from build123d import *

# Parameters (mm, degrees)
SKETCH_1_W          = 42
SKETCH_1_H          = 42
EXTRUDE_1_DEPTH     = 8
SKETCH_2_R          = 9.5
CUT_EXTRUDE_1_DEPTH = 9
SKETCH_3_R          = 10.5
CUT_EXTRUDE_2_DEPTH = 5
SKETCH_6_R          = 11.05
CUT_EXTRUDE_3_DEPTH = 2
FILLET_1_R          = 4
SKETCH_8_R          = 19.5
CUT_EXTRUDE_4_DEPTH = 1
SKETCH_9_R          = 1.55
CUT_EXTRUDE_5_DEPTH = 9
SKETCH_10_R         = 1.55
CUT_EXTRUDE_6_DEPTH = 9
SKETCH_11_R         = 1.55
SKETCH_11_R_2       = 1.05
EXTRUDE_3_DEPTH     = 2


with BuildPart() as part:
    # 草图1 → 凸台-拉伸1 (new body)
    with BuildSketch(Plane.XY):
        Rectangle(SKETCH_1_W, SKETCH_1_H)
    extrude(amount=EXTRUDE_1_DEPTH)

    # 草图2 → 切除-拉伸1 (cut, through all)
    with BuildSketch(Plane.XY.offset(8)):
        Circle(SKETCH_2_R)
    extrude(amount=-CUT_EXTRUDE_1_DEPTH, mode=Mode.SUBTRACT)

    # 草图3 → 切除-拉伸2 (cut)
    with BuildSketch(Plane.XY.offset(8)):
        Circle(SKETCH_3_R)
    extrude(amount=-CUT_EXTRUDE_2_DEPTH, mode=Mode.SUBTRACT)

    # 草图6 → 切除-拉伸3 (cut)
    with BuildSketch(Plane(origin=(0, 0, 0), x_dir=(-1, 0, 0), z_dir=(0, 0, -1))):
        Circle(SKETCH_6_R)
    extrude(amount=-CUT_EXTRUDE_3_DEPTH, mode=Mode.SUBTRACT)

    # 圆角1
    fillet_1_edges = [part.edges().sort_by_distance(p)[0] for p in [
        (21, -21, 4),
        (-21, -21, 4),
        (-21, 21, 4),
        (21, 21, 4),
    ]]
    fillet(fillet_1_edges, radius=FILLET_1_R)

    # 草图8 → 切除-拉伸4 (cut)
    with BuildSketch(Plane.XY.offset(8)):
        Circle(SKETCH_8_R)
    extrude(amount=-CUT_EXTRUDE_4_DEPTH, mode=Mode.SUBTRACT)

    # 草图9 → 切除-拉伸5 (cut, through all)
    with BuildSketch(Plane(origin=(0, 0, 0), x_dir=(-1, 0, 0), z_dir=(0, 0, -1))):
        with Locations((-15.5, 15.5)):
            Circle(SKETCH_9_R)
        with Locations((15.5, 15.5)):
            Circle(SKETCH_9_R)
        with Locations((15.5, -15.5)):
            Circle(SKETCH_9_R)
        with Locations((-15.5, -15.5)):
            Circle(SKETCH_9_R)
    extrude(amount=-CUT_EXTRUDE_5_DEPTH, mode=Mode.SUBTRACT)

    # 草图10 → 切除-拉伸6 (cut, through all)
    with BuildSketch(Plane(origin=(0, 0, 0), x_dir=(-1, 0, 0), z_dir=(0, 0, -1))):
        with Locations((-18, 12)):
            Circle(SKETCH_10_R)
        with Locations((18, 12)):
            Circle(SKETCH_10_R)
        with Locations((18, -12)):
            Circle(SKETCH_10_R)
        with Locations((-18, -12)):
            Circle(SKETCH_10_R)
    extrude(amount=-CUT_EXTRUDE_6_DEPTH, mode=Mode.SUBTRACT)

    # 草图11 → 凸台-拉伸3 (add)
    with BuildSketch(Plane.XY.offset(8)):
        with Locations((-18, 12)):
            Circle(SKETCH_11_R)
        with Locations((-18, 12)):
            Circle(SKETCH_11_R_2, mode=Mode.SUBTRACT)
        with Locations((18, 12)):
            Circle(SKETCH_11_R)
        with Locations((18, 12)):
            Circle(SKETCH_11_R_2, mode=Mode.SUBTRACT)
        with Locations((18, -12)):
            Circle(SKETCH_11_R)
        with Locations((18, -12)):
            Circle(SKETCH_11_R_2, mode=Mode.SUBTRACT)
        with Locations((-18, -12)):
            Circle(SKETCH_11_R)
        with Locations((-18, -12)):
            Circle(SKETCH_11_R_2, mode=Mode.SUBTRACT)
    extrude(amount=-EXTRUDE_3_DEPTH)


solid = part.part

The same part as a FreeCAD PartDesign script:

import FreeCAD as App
import Part
import Sketcher

V = App.Vector


def edges_at(feature, points):
    """Names of the edges that pass closest to the given points."""
    edges = feature.Shape.Edges
    near = lambda p: min(range(len(edges)), key=lambda i: edges[i].distToShape(Part.Vertex(*p))[0])
    return sorted({f"Edge{near(p) + 1}" for p in points})

doc = App.newDocument("Part")
body = doc.addObject("PartDesign::Body", "Body")

# Sketch on XY plane
sketch1 = doc.addObject("Sketcher::SketchObject", "Sketch")
body.addObject(sketch1)
sketch1.AttachmentSupport = (doc.XY_Plane, [""])
sketch1.MapMode = "FlatFace"
sketch1.addGeometry(Part.LineSegment(V(-21, 21, 0), V(-21, -21, 0)), False)
sketch1.addGeometry(Part.LineSegment(V(-21, -21, 0), V(21, -21, 0)), False)
sketch1.addGeometry(Part.LineSegment(V(21, -21, 0), V(21, 21, 0)), False)
sketch1.addGeometry(Part.LineSegment(V(21, 21, 0), V(-21, 21, 0)), False)
sketch1.addConstraint(Sketcher.Constraint("Coincident", 0, 2, 1, 1))
sketch1.addConstraint(Sketcher.Constraint("Coincident", 1, 2, 2, 1))
sketch1.addConstraint(Sketcher.Constraint("Coincident", 2, 2, 3, 1))
sketch1.addConstraint(Sketcher.Constraint("Coincident", 3, 2, 0, 1))
sketch1.addConstraint(Sketcher.Constraint("Vertical", 0))
sketch1.addConstraint(Sketcher.Constraint("Horizontal", 1))
sketch1.addConstraint(Sketcher.Constraint("Vertical", 2))
sketch1.addConstraint(Sketcher.Constraint("Horizontal", 3))
sketch1.addConstraint(Sketcher.Constraint("Symmetric", 0, 2, 2, 2, -1, 1))
sketch1.addConstraint(Sketcher.Constraint("Equal", 3, 0))
sketch1.addConstraint(Sketcher.Constraint("DistanceX", 1, 1, 1, 2, 42.0))
pad1 = doc.addObject("PartDesign::Pad", "Pad")
body.addObject(pad1)
pad1.Profile = sketch1
pad1.Length = 8

# Sketch on XY plane
sketch2 = doc.addObject("Sketcher::SketchObject", "Sketch001")
body.addObject(sketch2)
sketch2.AttachmentSupport = (doc.XY_Plane, [""])
sketch2.MapMode = "FlatFace"
sketch2.AttachmentOffset = App.Placement(V(0, 0, 8), App.Rotation())
sketch2.addGeometry(Part.Circle(V(0, 0, 0), V(0, 0, 1), 10), False)
sketch2.addConstraint(Sketcher.Constraint("Coincident", 0, 3, -1, 1))
sketch2.addConstraint(Sketcher.Constraint("Diameter", 0, 19.0))
pocket1 = doc.addObject("PartDesign::Pocket", "Pocket")
body.addObject(pocket1)
pocket1.Profile = sketch2
pocket1.Type = "ThroughAll"

# Sketch on XY plane
sketch3 = doc.addObject("Sketcher::SketchObject", "Sketch002")
body.addObject(sketch3)
sketch3.AttachmentSupport = (doc.XY_Plane, [""])
sketch3.MapMode = "FlatFace"
sketch3.AttachmentOffset = App.Placement(V(0, 0, 8), App.Rotation())
sketch3.addGeometry(Part.Circle(V(0, 0, 0), V(0, 0, 1), 10), False)
sketch3.addConstraint(Sketcher.Constraint("Coincident", 0, 3, -1, 1))
sketch3.addConstraint(Sketcher.Constraint("Diameter", 0, 21.0))
pocket2 = doc.addObject("PartDesign::Pocket", "Pocket001")
body.addObject(pocket2)
pocket2.Profile = sketch3
pocket2.Length = 5

# Sketch on XY plane
sketch4 = doc.addObject("Sketcher::SketchObject", "Sketch003")
body.addObject(sketch4)
sketch4.AttachmentSupport = (doc.XY_Plane, [""])
sketch4.MapMode = "FlatFace"
sketch4.addGeometry(Part.Circle(V(0, 0, 0), V(0, 0, 1), 11), False)
sketch4.addConstraint(Sketcher.Constraint("Coincident", 0, 3, -1, 1))
sketch4.addConstraint(Sketcher.Constraint("Diameter", 0, 22.1))
pocket3 = doc.addObject("PartDesign::Pocket", "Pocket002")
body.addObject(pocket3)
pocket3.Profile = sketch4
pocket3.Length = 2
pocket3.Reversed = True
doc.recompute()

fillet = doc.addObject("PartDesign::Fillet", "Fillet")
body.addObject(fillet)
fillet.Base = (pocket3, edges_at(pocket3, [
    (21, -21, 4),
    (-21, -21, 4),
    (-21, 21, 4),
    (21, 21, 4),
]))
fillet.Radius = 4

# Sketch on XY plane
sketch5 = doc.addObject("Sketcher::SketchObject", "Sketch004")
body.addObject(sketch5)
sketch5.AttachmentSupport = (doc.XY_Plane, [""])
sketch5.MapMode = "FlatFace"
sketch5.AttachmentOffset = App.Placement(V(0, 0, 8), App.Rotation())
sketch5.addGeometry(Part.Circle(V(0, 0, 0), V(0, 0, 1), 20), False)
sketch5.addConstraint(Sketcher.Constraint("Coincident", 0, 3, -1, 1))
sketch5.addConstraint(Sketcher.Constraint("Diameter", 0, 39.0))
pocket4 = doc.addObject("PartDesign::Pocket", "Pocket003")
body.addObject(pocket4)
pocket4.Profile = sketch5
pocket4.Length = 1

# Sketch on XY plane
sketch6 = doc.addObject("Sketcher::SketchObject", "Sketch005")
body.addObject(sketch6)
sketch6.AttachmentSupport = (doc.XY_Plane, [""])
sketch6.MapMode = "FlatFace"
sketch6.addGeometry(Part.Circle(V(15.5, 15.5, 0), V(0, 0, 1), 1.6), False)
sketch6.addGeometry(Part.Circle(V(-15.5, 15.5, 0), V(0, 0, 1), 1.6), False)
sketch6.addGeometry(Part.Circle(V(-15.5, -15.5, 0), V(0, 0, 1), 1.6), False)
sketch6.addGeometry(Part.Circle(V(15.5, -15.5, 0), V(0, 0, 1), 1.6), False)
sketch6.addConstraint(Sketcher.Constraint("Equal", 0, 1))
sketch6.addConstraint(Sketcher.Constraint("Equal", 1, 2))
sketch6.addConstraint(Sketcher.Constraint("Equal", 2, 3))
sketch6.addConstraint(Sketcher.Constraint("Symmetric", 0, 3, 2, 3, -1, 1))
sketch6.addConstraint(Sketcher.Constraint("Symmetric", 1, 3, 3, 3, -1, 1))
sketch6.addConstraint(Sketcher.Constraint("Symmetric", 0, 3, 1, 3, -2))
sketch6.addConstraint(Sketcher.Constraint("Diameter", 0, 3.1))
sketch6.addConstraint(Sketcher.Constraint("DistanceX", 1, 3, 0, 3, 31.0))
sketch6.addConstraint(Sketcher.Constraint("DistanceY", 2, 3, 1, 3, 31.0))
pocket5 = doc.addObject("PartDesign::Pocket", "Pocket004")
body.addObject(pocket5)
pocket5.Profile = sketch6
pocket5.Type = "ThroughAll"
pocket5.Reversed = True

# Sketch on XY plane
sketch7 = doc.addObject("Sketcher::SketchObject", "Sketch006")
body.addObject(sketch7)
sketch7.AttachmentSupport = (doc.XY_Plane, [""])
sketch7.MapMode = "FlatFace"
sketch7.addGeometry(Part.Circle(V(18, 12, 0), V(0, 0, 1), 1.6), False)
sketch7.addGeometry(Part.Circle(V(-18, 12, 0), V(0, 0, 1), 1.6), False)
sketch7.addGeometry(Part.Circle(V(-18, -12, 0), V(0, 0, 1), 1.6), False)
sketch7.addGeometry(Part.Circle(V(18, -12, 0), V(0, 0, 1), 1.6), False)
sketch7.addConstraint(Sketcher.Constraint("Equal", 0, 1))
sketch7.addConstraint(Sketcher.Constraint("Equal", 1, 2))
sketch7.addConstraint(Sketcher.Constraint("Equal", 2, 3))
sketch7.addConstraint(Sketcher.Constraint("Symmetric", 0, 3, 2, 3, -1, 1))
sketch7.addConstraint(Sketcher.Constraint("Symmetric", 1, 3, 3, 3, -1, 1))
sketch7.addConstraint(Sketcher.Constraint("Symmetric", 0, 3, 1, 3, -2))
sketch7.addConstraint(Sketcher.Constraint("Diameter", 0, 3.1))
sketch7.addConstraint(Sketcher.Constraint("DistanceX", -1, 1, 0, 3, 18.0))
sketch7.addConstraint(Sketcher.Constraint("DistanceY", -1, 1, 0, 3, 12.0))
pocket6 = doc.addObject("PartDesign::Pocket", "Pocket005")
body.addObject(pocket6)
pocket6.Profile = sketch7
pocket6.Type = "ThroughAll"
pocket6.Reversed = True

# Sketch on XY plane
sketch8 = doc.addObject("Sketcher::SketchObject", "Sketch007")
body.addObject(sketch8)
sketch8.AttachmentSupport = (doc.XY_Plane, [""])
sketch8.MapMode = "FlatFace"
sketch8.AttachmentOffset = App.Placement(V(0, 0, 8), App.Rotation())
sketch8.addGeometry(Part.Circle(V(-18, 12, 0), V(0, 0, 1), 1.6), False)
sketch8.addGeometry(Part.Circle(V(-18, 12, 0), V(0, 0, 1), 1.1), False)
sketch8.addGeometry(Part.Circle(V(18, 12, 0), V(0, 0, 1), 1.6), False)
sketch8.addGeometry(Part.Circle(V(18, 12, 0), V(0, 0, 1), 1.1), False)
sketch8.addGeometry(Part.Circle(V(18, -12, 0), V(0, 0, 1), 1.6), False)
sketch8.addGeometry(Part.Circle(V(18, -12, 0), V(0, 0, 1), 1.1), False)
sketch8.addGeometry(Part.Circle(V(-18, -12, 0), V(0, 0, 1), 1.6), False)
sketch8.addGeometry(Part.Circle(V(-18, -12, 0), V(0, 0, 1), 1.1), False)
sketch8.addConstraint(Sketcher.Constraint("Coincident", 1, 3, 0, 3))
sketch8.addConstraint(Sketcher.Constraint("Coincident", 3, 3, 2, 3))
sketch8.addConstraint(Sketcher.Constraint("Coincident", 5, 3, 4, 3))
sketch8.addConstraint(Sketcher.Constraint("Coincident", 7, 3, 6, 3))
sketch8.addConstraint(Sketcher.Constraint("Equal", 0, 2))
sketch8.addConstraint(Sketcher.Constraint("Equal", 1, 3))
sketch8.addConstraint(Sketcher.Constraint("Equal", 2, 4))
sketch8.addConstraint(Sketcher.Constraint("Equal", 3, 5))
sketch8.addConstraint(Sketcher.Constraint("Equal", 4, 6))
sketch8.addConstraint(Sketcher.Constraint("Equal", 5, 7))
sketch8.addConstraint(Sketcher.Constraint("Symmetric", 0, 3, 4, 3, -1, 1))
sketch8.addConstraint(Sketcher.Constraint("Symmetric", 2, 3, 6, 3, -1, 1))
sketch8.addConstraint(Sketcher.Constraint("Symmetric", 0, 3, 2, 3, -2))
sketch8.addConstraint(Sketcher.Constraint("Diameter", 0, 3.1))
sketch8.addConstraint(Sketcher.Constraint("Diameter", 1, 2.1))
sketch8.addConstraint(Sketcher.Constraint("DistanceX", 0, 3, -1, 1, 18.0))
sketch8.addConstraint(Sketcher.Constraint("DistanceY", -1, 1, 0, 3, 12.0))
pad2 = doc.addObject("PartDesign::Pad", "Pad001")
body.addObject(pad2)
pad2.Profile = sketch8
pad2.Length = 2
pad2.Reversed = True

doc.recompute()
